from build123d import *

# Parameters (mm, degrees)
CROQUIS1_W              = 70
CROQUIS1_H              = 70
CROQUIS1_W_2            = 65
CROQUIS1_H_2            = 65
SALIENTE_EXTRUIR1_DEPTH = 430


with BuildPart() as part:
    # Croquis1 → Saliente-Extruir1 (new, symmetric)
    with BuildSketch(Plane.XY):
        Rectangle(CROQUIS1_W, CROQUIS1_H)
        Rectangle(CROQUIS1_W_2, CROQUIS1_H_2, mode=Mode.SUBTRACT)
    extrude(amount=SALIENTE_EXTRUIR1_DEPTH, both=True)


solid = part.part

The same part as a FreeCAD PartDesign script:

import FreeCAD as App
import Part
import Sketcher

V = App.Vector
Q = App.Units.Quantity

doc = App.newDocument("Part")
params = doc.addObject("Spreadsheet::Sheet", "Params")
for row, (alias, value) in enumerate([
    ("sketch1_width", "70 mm"),
    ("sketch1_width2", "65 mm"),
    ("pad1_length", "860 mm"),
], start=1):
    params.set(f"A{row}", alias)
    params.set(f"B{row}", "=" + value)
    params.setAlias(f"B{row}", alias)

body = doc.addObject("PartDesign::Body", "Body")

sketch1 = body.newObject("Sketcher::SketchObject", "Sketch")
sketch1.AttachmentSupport = (doc.getObject("XY_Plane"), [""])
sketch1.MapMode = "FlatFace"
sketch1.addGeometry([
    Part.LineSegment(V(-35, 35, 0), V(-35, -35, 0)),
    Part.LineSegment(V(-35, -35, 0), V(35, -35, 0)),
    Part.LineSegment(V(35, -35, 0), V(35, 35, 0)),
    Part.LineSegment(V(35, 35, 0), V(-35, 35, 0)),
    Part.LineSegment(V(32, -32, 0), V(-32, -32, 0)),
    Part.LineSegment(V(-32, -32, 0), V(-32, 32, 0)),
    Part.LineSegment(V(-32, 32, 0), V(32, 32, 0)),
    Part.LineSegment(V(32, 32, 0), V(32, -32, 0)),
], False)
sketch1.addConstraint([
    Sketcher.Constraint("Coincident", 0, 2, 1, 1),
    Sketcher.Constraint("Coincident", 1, 2, 2, 1),
    Sketcher.Constraint("Coincident", 2, 2, 3, 1),
    Sketcher.Constraint("Coincident", 3, 2, 0, 1),
    Sketcher.Constraint("Coincident", 4, 2, 5, 1),
    Sketcher.Constraint("Coincident", 5, 2, 6, 1),
    Sketcher.Constraint("Coincident", 6, 2, 7, 1),
    Sketcher.Constraint("Coincident", 7, 2, 4, 1),
    Sketcher.Constraint("Vertical", 0),
    Sketcher.Constraint("Horizontal", 1),
    Sketcher.Constraint("Vertical", 2),
    Sketcher.Constraint("Horizontal", 3),
    Sketcher.Constraint("Horizontal", 4),
    Sketcher.Constraint("Vertical", 5),
    Sketcher.Constraint("Horizontal", 6),
    Sketcher.Constraint("Vertical", 7),
    Sketcher.Constraint("Symmetric", 0, 2, 2, 2, -1, 1),
    Sketcher.Constraint("Symmetric", 4, 2, 6, 2, -1, 1),
    Sketcher.Constraint("Equal", 3, 0),
    Sketcher.Constraint("Equal", 6, 5),
    Sketcher.Constraint("DistanceX", 1, 1, 1, 2, Q("70 mm")),
    Sketcher.Constraint("DistanceX", 4, 2, 4, 1, Q("65 mm")),
])
sketch1.setExpression("Constraints[20]", "Params.sketch1_width")
sketch1.setExpression("Constraints[21]", "Params.sketch1_width2")
pad1 = body.newObject("PartDesign::Pad", "Pad")
pad1.Profile = sketch1
pad1.setExpression("Length", "Params.pad1_length")
pad1.Midplane = True

doc.recompute()
